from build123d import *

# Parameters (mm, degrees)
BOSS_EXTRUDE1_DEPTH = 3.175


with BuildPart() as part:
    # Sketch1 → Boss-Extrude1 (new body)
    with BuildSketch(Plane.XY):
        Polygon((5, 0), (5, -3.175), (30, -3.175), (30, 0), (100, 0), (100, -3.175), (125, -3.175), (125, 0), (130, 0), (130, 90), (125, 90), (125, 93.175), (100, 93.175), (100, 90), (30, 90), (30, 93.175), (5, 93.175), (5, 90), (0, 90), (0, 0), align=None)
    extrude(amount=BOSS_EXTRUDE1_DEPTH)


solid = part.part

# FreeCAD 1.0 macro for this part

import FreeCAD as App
import Part
import Sketcher
from FreeCAD import Vector

doc = App.newDocument("Part")
body = doc.addObject("PartDesign::Body", "Body")

# Sketch on XY plane
sketch1 = body.newObject("Sketcher::SketchObject", "Sketch")
sketch1.AttachmentSupport = (doc.getObject("XY_Plane"), [""])
sketch1.MapMode = "FlatFace"
sketch1.addGeometry([
    Part.LineSegment(Vector(5, 0, 0), Vector(5, -3.2, 0)),  # 0
    Part.LineSegment(Vector(5, -3.2, 0), Vector(30, -3.2, 0)),  # 1
    Part.LineSegment(Vector(30, -3.2, 0), Vector(30, 0, 0)),  # 2
    Part.LineSegment(Vector(30, 0, 0), Vector(100, 0, 0)),  # 3
    Part.LineSegment(Vector(100, 0, 0), Vector(100, -3.2, 0)),  # 4
    Part.LineSegment(Vector(100, -3.2, 0), Vector(125, -3.2, 0)),  # 5
    Part.LineSegment(Vector(125, -3.2, 0), Vector(125, 0, 0)),  # 6
    Part.LineSegment(Vector(125, 0, 0), Vector(130, 0, 0)),  # 7
    Part.LineSegment(Vector(130, 0, 0), Vector(130, 90, 0)),  # 8
    Part.LineSegment(Vector(130, 90, 0), Vector(125, 90, 0)),  # 9
    Part.LineSegment(Vector(125, 90, 0), Vector(125, 93.2, 0)),  # 10
    Part.LineSegment(Vector(125, 93.2, 0), Vector(100, 93.2, 0)),  # 11
    Part.LineSegment(Vector(100, 93.2, 0), Vector(100, 90, 0)),  # 12
    Part.LineSegment(Vector(100, 90, 0), Vector(30, 90, 0)),  # 13
    Part.LineSegment(Vector(30, 90, 0), Vector(30, 93.2, 0)),  # 14
    Part.LineSegment(Vector(30, 93.2, 0), Vector(5, 93.2, 0)),  # 15
    Part.LineSegment(Vector(5, 93.2, 0), Vector(5, 90, 0)),  # 16
    Part.LineSegment(Vector(5, 90, 0), Vector(0, 90, 0)),  # 17
    Part.LineSegment(Vector(0, 90, 0), Vector(0, 0, 0)),  # 18
    Part.LineSegment(Vector(0, 0, 0), Vector(5, 0, 0)),  # 19
], False)
sketch1.addConstraint([
    Sketcher.Constraint("Coincident", 0, 2, 1, 1),
    Sketcher.Constraint("Coincident", 1, 2, 2, 1),
    Sketcher.Constraint("Coincident", 2, 2, 3, 1),
    Sketcher.Constraint("Coincident", 3, 2, 4, 1),
    Sketcher.Constraint("Coincident", 4, 2, 5, 1),
    Sketcher.Constraint("Coincident", 5, 2, 6, 1),
    Sketcher.Constraint("Coincident", 6, 2, 7, 1),
    Sketcher.Constraint("Coincident", 7, 2, 8, 1),
    Sketcher.Constraint("Coincident", 8, 2, 9, 1),
    Sketcher.Constraint("Coincident", 9, 2, 10, 1),
    Sketcher.Constraint("Coincident", 10, 2, 11, 1),
    Sketcher.Constraint("Coincident", 11, 2, 12, 1),
    Sketcher.Constraint("Coincident", 12, 2, 13, 1),
    Sketcher.Constraint("Coincident", 13, 2, 14, 1),
    Sketcher.Constraint("Coincident", 14, 2, 15, 1),
    Sketcher.Constraint("Coincident", 15, 2, 16, 1),
    Sketcher.Constraint("Coincident", 16, 2, 17, 1),
    Sketcher.Constraint("Coincident", 17, 2, 18, 1),
    Sketcher.Constraint("Coincident", 18, 2, 19, 1),
    Sketcher.Constraint("Coincident", 19, 2, 0, 1),
    Sketcher.Constraint("Vertical", 0),
    Sketcher.Constraint("Horizontal", 1),
    Sketcher.Constraint("Vertical", 2),
    Sketcher.Constraint("Horizontal", 3),
    Sketcher.Constraint("Vertical", 4),
    Sketcher.Constraint("Horizontal", 5),
    Sketcher.Constraint("Vertical", 6),
    Sketcher.Constraint("Horizontal", 7),
    Sketcher.Constraint("Vertical", 8),
    Sketcher.Constraint("Horizontal", 9),
    Sketcher.Constraint("Vertical", 10),
    Sketcher.Constraint("Horizontal", 11),
    Sketcher.Constraint("Vertical", 12),
    Sketcher.Constraint("Horizontal", 13),
    Sketcher.Constraint("Vertical", 14),
    Sketcher.Constraint("Horizontal", 15),
    Sketcher.Constraint("Vertical", 16),
    Sketcher.Constraint("Horizontal", 17),
    Sketcher.Constraint("Vertical", 18),
    Sketcher.Constraint("Horizontal", 19),
    Sketcher.Constraint("Coincident", 18, 2, -1, 1),
    Sketcher.Constraint("PointOnObject", 2, 2, -1),
    Sketcher.Constraint("PointOnObject", 6, 2, -1),
    Sketcher.Constraint("Horizontal", 1, 2, 4, 2),
    Sketcher.Constraint("Horizontal", 9, 2, 12, 2),
    Sketcher.Constraint("Horizontal", 11, 2, 14, 2),
    Sketcher.Constraint("Horizontal", 13, 2, 16, 2),
    Sketcher.Constraint("Vertical", 6, 2, 9, 2),
    Sketcher.Constraint("Vertical", 4, 2, 11, 2),
    Sketcher.Constraint("Vertical", 2, 2, 13, 2),
    Sketcher.Constraint("Vertical", 0, 2, 15, 2),
    Sketcher.Constraint("Equal", 1, 5),
    Sketcher.Constraint("Equal", 9, 17),
    Sketcher.Constraint("Equal", 6, 10),
    Sketcher.Constraint("DistanceX", 1, 1, 1, 2, 25.0),
    Sketcher.Constraint("DistanceX", 3, 1, 3, 2, 70.0),
    Sketcher.Constraint("DistanceX", 7, 1, 7, 2, 5.0),
    Sketcher.Constraint("DistanceY", 8, 1, 8, 2, 90.0),
    Sketcher.Constraint("DistanceY", 0, 2, 0, 1, 3.175),
])
pad1 = body.newObject("PartDesign::Pad", "Pad")
pad1.Profile = sketch1
pad1.Length = 3.175

doc.recompute()
